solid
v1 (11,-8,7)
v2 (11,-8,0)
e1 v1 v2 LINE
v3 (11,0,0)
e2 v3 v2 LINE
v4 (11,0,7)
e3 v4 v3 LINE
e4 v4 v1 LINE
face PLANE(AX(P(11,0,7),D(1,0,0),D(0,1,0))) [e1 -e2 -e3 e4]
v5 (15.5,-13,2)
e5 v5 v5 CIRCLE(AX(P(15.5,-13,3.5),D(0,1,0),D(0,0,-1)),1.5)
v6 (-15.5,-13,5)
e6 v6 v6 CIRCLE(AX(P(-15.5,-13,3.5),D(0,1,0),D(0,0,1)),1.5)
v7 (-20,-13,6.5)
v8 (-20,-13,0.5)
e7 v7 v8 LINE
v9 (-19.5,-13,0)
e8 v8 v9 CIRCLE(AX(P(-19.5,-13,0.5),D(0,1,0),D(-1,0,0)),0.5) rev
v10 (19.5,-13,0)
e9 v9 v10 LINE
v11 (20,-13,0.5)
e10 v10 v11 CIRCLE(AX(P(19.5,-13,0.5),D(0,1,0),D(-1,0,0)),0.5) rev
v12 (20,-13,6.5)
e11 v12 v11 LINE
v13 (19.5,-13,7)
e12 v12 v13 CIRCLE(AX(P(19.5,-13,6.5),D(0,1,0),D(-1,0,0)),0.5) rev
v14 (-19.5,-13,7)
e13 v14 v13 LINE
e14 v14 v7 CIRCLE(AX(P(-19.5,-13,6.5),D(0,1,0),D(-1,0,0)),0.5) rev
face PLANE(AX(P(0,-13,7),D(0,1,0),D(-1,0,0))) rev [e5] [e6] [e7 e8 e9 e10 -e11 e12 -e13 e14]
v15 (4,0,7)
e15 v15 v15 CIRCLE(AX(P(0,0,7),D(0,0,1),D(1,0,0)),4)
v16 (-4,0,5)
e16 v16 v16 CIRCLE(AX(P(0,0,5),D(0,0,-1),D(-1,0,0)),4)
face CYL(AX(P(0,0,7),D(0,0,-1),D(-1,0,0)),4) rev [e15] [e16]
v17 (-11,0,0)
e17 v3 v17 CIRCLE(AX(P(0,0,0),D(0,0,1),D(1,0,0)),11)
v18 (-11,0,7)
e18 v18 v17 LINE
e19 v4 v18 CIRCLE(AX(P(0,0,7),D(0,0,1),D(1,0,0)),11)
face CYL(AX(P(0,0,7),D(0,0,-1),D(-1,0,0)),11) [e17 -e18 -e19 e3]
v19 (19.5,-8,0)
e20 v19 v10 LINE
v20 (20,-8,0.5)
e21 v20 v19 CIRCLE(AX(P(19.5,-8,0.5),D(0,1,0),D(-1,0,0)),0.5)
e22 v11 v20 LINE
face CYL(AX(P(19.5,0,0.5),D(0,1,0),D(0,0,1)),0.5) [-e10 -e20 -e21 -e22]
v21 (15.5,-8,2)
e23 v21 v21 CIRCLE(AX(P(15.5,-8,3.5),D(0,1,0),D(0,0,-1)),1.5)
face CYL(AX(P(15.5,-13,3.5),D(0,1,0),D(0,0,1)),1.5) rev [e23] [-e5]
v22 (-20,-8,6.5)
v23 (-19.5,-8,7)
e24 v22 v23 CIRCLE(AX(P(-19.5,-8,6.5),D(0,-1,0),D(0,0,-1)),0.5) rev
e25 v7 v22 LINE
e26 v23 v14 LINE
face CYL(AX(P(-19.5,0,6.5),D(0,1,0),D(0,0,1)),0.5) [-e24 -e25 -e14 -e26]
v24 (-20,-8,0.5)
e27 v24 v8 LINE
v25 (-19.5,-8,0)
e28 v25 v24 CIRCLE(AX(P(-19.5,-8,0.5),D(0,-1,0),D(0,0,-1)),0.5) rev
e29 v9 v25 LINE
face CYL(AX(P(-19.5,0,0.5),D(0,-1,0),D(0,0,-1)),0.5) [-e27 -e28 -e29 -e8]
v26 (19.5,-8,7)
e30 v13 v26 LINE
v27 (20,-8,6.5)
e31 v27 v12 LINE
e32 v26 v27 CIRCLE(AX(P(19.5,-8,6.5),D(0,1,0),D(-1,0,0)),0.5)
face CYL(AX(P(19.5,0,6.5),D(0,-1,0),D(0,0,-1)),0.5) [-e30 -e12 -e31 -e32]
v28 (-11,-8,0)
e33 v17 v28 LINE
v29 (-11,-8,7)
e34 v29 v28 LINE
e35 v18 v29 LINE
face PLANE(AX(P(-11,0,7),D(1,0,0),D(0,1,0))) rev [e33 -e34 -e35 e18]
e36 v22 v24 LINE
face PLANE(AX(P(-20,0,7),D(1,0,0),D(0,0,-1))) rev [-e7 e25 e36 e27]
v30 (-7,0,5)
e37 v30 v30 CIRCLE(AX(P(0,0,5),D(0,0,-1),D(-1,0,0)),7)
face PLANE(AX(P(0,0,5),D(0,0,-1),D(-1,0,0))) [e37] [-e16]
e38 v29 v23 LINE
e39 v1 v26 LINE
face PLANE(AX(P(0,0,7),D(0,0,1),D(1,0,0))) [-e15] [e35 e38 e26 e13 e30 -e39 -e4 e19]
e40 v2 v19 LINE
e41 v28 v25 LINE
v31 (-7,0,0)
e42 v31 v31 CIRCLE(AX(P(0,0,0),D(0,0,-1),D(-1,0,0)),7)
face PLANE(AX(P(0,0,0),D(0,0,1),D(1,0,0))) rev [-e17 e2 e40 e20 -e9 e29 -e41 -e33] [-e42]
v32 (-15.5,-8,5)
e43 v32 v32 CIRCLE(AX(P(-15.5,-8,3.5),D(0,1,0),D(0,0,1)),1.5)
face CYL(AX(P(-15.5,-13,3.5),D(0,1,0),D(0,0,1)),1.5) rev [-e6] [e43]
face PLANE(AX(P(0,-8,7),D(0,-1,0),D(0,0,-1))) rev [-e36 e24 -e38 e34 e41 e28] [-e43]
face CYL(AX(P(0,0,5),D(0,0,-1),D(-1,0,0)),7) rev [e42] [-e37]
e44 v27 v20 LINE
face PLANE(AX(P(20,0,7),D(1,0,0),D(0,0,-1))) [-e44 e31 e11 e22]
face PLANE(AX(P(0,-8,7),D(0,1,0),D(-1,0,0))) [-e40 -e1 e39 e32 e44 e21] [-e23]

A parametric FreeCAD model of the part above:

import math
import FreeCAD as App
import Part
import Sketcher

V = App.Vector
Q = App.Units.Quantity


def edges_at(feature, points):
    """Names of the edges that pass closest to the given points."""
    edges = feature.Shape.Edges
    near = lambda p: min(range(len(edges)), key=lambda i: edges[i].distToShape(Part.Vertex(*p))[0])
    return sorted({f"Edge{near(p) + 1}" for p in points})

doc = App.newDocument("Part")
body = doc.addObject("PartDesign::Body", "Body")

sketch1 = doc.addObject("Sketcher::SketchObject", "Sketch")
body.addObject(sketch1)
sketch1.AttachmentSupport = (doc.XY_Plane, [""])
sketch1.MapMode = "FlatFace"
sketch1.addGeometry(Part.LineSegment(V(11, -8, 0), V(11, 0, 0)), False)
sketch1.addGeometry(Part.ArcOfCircle(Part.Circle(V(0, 0, 0), V(0, 0, 1), 11), math.radians(0), math.radians(90)), False)
sketch1.addGeometry(Part.ArcOfCircle(Part.Circle(V(0, 0, 0), V(0, 0, 1), 11), math.radians(90), math.radians(180)), False)
sketch1.addGeometry(Part.LineSegment(V(-11, 0, 0), V(-11, -8, 0)), False)
sketch1.addGeometry(Part.LineSegment(V(-11, -8, 0), V(-20, -8, 0)), False)
sketch1.addGeometry(Part.LineSegment(V(-20, -8, 0), V(-20, -13, 0)), False)
sketch1.addGeometry(Part.LineSegment(V(-20, -13, 0), V(20, -13, 0)), False)
sketch1.addGeometry(Part.LineSegment(V(20, -13, 0), V(20, -8, 0)), False)
sketch1.addGeometry(Part.LineSegment(V(20, -8, 0), V(11, -8, 0)), False)
sketch1.addGeometry(Part.ArcOfCircle(Part.Circle(V(0, 0, 0), V(0, 0, 1), 4), math.radians(90), math.radians(270)), False)
sketch1.addGeometry(Part.ArcOfCircle(Part.Circle(V(0, 0, 0), V(0, 0, 1), 4), math.radians(0), math.radians(90)), False)
sketch1.addGeometry(Part.ArcOfCircle(Part.Circle(V(0, 0, 0), V(0, 0, 1), 4), math.radians(-90), math.radians(0)), False)
sketch1.addConstraint(Sketcher.Constraint("Tangent", 0, 2, 1, 1))
sketch1.addConstraint(Sketcher.Constraint("Tangent", 1, 2, 2, 1))
sketch1.addConstraint(Sketcher.Constraint("Tangent", 2, 2, 3, 1))
sketch1.addConstraint(Sketcher.Constraint("Coincident", 3, 2, 4, 1))
sketch1.addConstraint(Sketcher.Constraint("Coincident", 4, 2, 5, 1))
sketch1.addConstraint(Sketcher.Constraint("Coincident", 5, 2, 6, 1))
sketch1.addConstraint(Sketcher.Constraint("Coincident", 6, 2, 7, 1))
sketch1.addConstraint(Sketcher.Constraint("Coincident", 7, 2, 8, 1))
sketch1.addConstraint(Sketcher.Constraint("Coincident", 8, 2, 0, 1))
sketch1.addConstraint(Sketcher.Constraint("Tangent", 9, 1, 10, 2))
sketch1.addConstraint(Sketcher.Constraint("Tangent", 10, 1, 11, 2))
sketch1.addConstraint(Sketcher.Constraint("Tangent", 11, 1, 9, 2))
sketch1.addConstraint(Sketcher.Constraint("Vertical", 0))
sketch1.addConstraint(Sketcher.Constraint("Vertical", 3))
sketch1.addConstraint(Sketcher.Constraint("Horizontal", 4))
sketch1.addConstraint(Sketcher.Constraint("Vertical", 5))
sketch1.addConstraint(Sketcher.Constraint("Horizontal", 6))
sketch1.addConstraint(Sketcher.Constraint("Vertical", 7))
sketch1.addConstraint(Sketcher.Constraint("Horizontal", 8))
sketch1.addConstraint(Sketcher.Constraint("Coincident", 1, 3, -1, 1))
sketch1.addConstraint(Sketcher.Constraint("Coincident", 9, 3, -1, 1))
sketch1.addConstraint(Sketcher.Constraint("Equal", 1, 2))
sketch1.addConstraint(Sketcher.Constraint("Symmetric", 4, 2, 7, 2, -2))
sketch1.addConstraint(Sketcher.Constraint("PointOnObject", 1, 2, -2))
sketch1.addConstraint(Sketcher.Constraint("PointOnObject", 9, 1, -2))
sketch1.addConstraint(Sketcher.Constraint("PointOnObject", 10, 1, -1))
sketch1.addConstraint(Sketcher.Constraint("PointOnObject", 11, 1, -2))
sketch1.addConstraint(Sketcher.Constraint("Radius", 1, Q("11 mm")))
sketch1.addConstraint(Sketcher.Constraint("Radius", 9, Q("4 mm")))
sketch1.addConstraint(Sketcher.Constraint("DistanceX", 4, 2, 4, 1, Q("9 mm")))
sketch1.addConstraint(Sketcher.Constraint("DistanceY", 0, 1, 0, 2, Q("8 mm")))
sketch1.addConstraint(Sketcher.Constraint("DistanceY", 5, 2, 5, 1, Q("5 mm")))
pad1 = doc.addObject("PartDesign::Pad", "Pad")
body.addObject(pad1)
pad1.Profile = sketch1
pad1.Length = 7

sketch2 = doc.addObject("Sketcher::SketchObject", "Sketch001")
body.addObject(sketch2)
sketch2.AttachmentSupport = (doc.XY_Plane, [""])
sketch2.MapMode = "FlatFace"
sketch2.addGeometry(Part.Circle(V(0, 0, 0), V(0, 0, 1), 7), False)
sketch2.addConstraint(Sketcher.Constraint("Coincident", 0, 3, -1, 1))
sketch2.addConstraint(Sketcher.Constraint("Diameter", 0, Q("14 mm")))
pocket1 = doc.addObject("PartDesign::Pocket", "Pocket")
body.addObject(pocket1)
pocket1.Profile = sketch2
pocket1.Length = 5
pocket1.Reversed = True

sketch3 = doc.addObject("Sketcher::SketchObject", "Sketch002")
body.addObject(sketch3)
sketch3.AttachmentSupport = (doc.XZ_Plane, [""])
sketch3.MapMode = "FlatFace"
sketch3.AttachmentOffset = App.Placement(V(0, 0, 8), App.Rotation())
sketch3.addGeometry(Part.Circle(V(-15.5, 3.5, 0), V(0, 0, 1), 1.5), False)
sketch3.addGeometry(Part.Circle(V(15.5, 3.5, 0), V(0, 0, 1), 1.5), False)
sketch3.addConstraint(Sketcher.Constraint("Equal", 0, 1))
sketch3.addConstraint(Sketcher.Constraint("Symmetric", 0, 3, 1, 3, -2))
sketch3.addConstraint(Sketcher.Constraint("Diameter", 0, Q("3 mm")))
sketch3.addConstraint(Sketcher.Constraint("DistanceX", 0, 3, 1, 3, Q("31 mm")))
sketch3.addConstraint(Sketcher.Constraint("DistanceY", -1, 1, 0, 3, Q("3.5 mm")))
pocket2 = doc.addObject("PartDesign::Pocket", "Pocket001")
body.addObject(pocket2)
pocket2.Profile = sketch3
pocket2.Length = 5
pocket2.Reversed = True
doc.recompute()

fillet = doc.addObject("PartDesign::Fillet", "Fillet")
body.addObject(fillet)
fillet.Base = (pocket2, edges_at(pocket2, [
    (20, -10.5, 7),
    (-20, -10.5, 0),
    (20, -10.5, 0),
    (-20, -10.5, 7),
]))
fillet.Radius = 0.5

doc.recompute()
